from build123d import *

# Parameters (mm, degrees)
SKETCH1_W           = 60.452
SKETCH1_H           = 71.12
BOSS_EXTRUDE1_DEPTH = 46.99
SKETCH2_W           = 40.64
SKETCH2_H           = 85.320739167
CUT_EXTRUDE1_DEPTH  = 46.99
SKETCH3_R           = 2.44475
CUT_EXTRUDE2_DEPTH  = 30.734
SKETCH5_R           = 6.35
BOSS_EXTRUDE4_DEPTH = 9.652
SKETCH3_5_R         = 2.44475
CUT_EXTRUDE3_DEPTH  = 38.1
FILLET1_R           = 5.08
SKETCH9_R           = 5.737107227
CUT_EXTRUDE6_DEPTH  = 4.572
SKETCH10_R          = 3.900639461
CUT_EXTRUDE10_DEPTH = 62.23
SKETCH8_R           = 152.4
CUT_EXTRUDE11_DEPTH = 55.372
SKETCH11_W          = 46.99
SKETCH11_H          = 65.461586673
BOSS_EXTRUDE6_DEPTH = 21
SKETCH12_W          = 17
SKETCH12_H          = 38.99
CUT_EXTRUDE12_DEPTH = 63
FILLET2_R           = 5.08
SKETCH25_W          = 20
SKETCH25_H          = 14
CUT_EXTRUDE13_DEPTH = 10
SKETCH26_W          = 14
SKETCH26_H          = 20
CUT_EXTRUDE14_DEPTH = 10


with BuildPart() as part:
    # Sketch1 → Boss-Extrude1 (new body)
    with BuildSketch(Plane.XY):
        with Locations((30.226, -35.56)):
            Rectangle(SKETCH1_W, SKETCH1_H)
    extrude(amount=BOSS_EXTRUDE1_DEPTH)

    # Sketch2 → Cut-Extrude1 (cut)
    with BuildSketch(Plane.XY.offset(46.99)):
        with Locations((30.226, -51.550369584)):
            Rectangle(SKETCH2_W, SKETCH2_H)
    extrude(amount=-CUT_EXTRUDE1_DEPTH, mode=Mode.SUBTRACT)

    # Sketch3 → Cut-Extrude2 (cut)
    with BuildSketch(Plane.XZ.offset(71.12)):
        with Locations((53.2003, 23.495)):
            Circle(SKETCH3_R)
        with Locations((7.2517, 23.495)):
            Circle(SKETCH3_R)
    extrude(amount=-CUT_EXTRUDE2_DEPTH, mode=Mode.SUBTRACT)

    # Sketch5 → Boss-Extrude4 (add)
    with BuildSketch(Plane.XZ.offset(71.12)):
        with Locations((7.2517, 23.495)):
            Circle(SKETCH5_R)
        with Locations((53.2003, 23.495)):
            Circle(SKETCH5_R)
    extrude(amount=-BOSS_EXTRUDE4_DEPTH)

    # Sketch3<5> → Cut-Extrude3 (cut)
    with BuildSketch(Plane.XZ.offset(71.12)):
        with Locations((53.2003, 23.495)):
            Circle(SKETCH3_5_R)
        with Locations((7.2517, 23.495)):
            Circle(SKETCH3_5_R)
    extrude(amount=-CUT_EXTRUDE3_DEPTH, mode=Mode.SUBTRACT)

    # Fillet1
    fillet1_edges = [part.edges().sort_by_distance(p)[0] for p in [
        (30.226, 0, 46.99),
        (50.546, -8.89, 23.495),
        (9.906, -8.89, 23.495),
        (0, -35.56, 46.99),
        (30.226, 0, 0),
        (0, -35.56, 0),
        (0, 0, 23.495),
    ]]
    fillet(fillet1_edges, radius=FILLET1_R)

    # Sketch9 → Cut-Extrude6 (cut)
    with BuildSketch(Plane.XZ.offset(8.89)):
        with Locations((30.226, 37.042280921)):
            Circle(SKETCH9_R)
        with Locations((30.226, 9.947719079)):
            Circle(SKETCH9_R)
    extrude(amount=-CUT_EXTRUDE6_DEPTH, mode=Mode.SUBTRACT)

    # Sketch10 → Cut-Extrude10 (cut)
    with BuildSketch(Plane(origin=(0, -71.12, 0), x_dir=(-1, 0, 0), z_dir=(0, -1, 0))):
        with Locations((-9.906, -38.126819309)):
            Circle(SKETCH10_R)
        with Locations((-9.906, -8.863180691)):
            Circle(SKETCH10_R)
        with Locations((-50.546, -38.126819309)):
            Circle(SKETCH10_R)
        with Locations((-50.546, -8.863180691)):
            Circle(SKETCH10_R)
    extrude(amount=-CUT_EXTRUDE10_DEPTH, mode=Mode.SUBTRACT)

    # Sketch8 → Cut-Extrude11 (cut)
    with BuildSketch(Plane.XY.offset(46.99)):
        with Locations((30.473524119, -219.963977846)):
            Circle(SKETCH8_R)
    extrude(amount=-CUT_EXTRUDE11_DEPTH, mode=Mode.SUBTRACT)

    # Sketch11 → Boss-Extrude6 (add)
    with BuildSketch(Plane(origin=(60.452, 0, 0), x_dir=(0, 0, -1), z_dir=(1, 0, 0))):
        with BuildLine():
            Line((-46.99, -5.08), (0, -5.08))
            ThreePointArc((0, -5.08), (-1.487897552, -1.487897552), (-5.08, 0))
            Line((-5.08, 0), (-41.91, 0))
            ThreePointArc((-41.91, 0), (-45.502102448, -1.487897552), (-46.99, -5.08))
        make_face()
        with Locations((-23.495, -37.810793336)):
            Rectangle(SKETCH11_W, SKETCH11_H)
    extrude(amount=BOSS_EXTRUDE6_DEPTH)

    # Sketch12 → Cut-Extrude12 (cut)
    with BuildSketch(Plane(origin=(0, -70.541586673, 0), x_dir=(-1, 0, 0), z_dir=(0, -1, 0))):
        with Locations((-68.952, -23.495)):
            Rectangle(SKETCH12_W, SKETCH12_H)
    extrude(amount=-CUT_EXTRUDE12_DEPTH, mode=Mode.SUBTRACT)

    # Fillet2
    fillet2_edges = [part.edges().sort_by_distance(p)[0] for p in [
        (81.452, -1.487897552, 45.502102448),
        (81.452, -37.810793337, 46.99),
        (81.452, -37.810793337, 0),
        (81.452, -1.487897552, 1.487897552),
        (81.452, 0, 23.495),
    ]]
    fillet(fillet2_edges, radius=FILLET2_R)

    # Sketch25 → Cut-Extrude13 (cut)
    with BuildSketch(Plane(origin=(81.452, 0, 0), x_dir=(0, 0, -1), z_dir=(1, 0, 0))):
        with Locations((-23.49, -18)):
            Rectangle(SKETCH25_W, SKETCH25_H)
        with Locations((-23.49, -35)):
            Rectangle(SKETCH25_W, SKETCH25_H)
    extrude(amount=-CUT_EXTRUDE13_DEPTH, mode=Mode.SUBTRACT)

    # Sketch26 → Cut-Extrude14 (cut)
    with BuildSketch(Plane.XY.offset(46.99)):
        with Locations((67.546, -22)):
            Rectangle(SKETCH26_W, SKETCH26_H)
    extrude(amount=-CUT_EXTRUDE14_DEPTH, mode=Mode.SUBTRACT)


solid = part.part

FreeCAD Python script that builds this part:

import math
import FreeCAD as App
import Part
import Sketcher

V = App.Vector
Q = App.Units.Quantity


def edges_at(feature, points):
    """Names of the edges that pass closest to the given points."""
    edges = feature.Shape.Edges
    near = lambda p: min(range(len(edges)), key=lambda i: edges[i].distToShape(Part.Vertex(*p))[0])
    return sorted({f"Edge{near(p) + 1}" for p in points})

doc = App.newDocument("Part")
body = doc.addObject("PartDesign::Body", "Body")

# Sketch on XY plane
sketch1 = body.newObject("Sketcher::SketchObject", "Sketch")
sketch1.AttachmentSupport = (doc.getObject("XY_Plane"), [""])
sketch1.MapMode = "FlatFace"
sketch1.addGeometry([
    Part.LineSegment(V(0, 0, 0), V(0, -71, 0)),
    Part.LineSegment(V(0, -71, 0), V(60, -71, 0)),
    Part.LineSegment(V(60, -71, 0), V(60, 0, 0)),
    Part.LineSegment(V(60, 0, 0), V(0, 0, 0)),
], False)
sketch1.addConstraint([
    Sketcher.Constraint("Coincident", 0, 2, 1, 1),
    Sketcher.Constraint("Coincident", 1, 2, 2, 1),
    Sketcher.Constraint("Coincident", 2, 2, 3, 1),
    Sketcher.Constraint("Coincident", 3, 2, 0, 1),
    Sketcher.Constraint("Vertical", 0),
    Sketcher.Constraint("Horizontal", 1),
    Sketcher.Constraint("Vertical", 2),
    Sketcher.Constraint("Horizontal", 3),
    Sketcher.Constraint("Coincident", 3, 2, -1, 1),
    Sketcher.Constraint("DistanceY", 0, 2, 0, 1, Q("2.8 in")),
    Sketcher.Constraint("DistanceX", 1, 1, 1, 2, Q("2.38 in")),
])
pad1 = body.newObject("PartDesign::Pad", "Pad")
pad1.Profile = sketch1
pad1.Length = Q("1.85 in")

# Sketch on XY plane
sketch2 = body.newObject("Sketcher::SketchObject", "Sketch001")
sketch2.AttachmentSupport = (doc.getObject("XY_Plane"), [""])
sketch2.MapMode = "FlatFace"
sketch2.AttachmentOffset = App.Placement(V(0, 0, 1.85 * 25.4), App.Rotation())
sketch2.addGeometry([
    Part.LineSegment(V(10, -9, 0), V(10, -94, 0)),
    Part.LineSegment(V(10, -94, 0), V(51, -94, 0)),
    Part.LineSegment(V(51, -94, 0), V(51, -9, 0)),
    Part.LineSegment(V(51, -9, 0), V(10, -9, 0)),
], False)
sketch2.addConstraint([
    Sketcher.Constraint("Coincident", 0, 2, 1, 1),
    Sketcher.Constraint("Coincident", 1, 2, 2, 1),
    Sketcher.Constraint("Coincident", 2, 2, 3, 1),
    Sketcher.Constraint("Coincident", 3, 2, 0, 1),
    Sketcher.Constraint("Vertical", 0),
    Sketcher.Constraint("Horizontal", 1),
    Sketcher.Constraint("Vertical", 2),
    Sketcher.Constraint("Horizontal", 3),
    Sketcher.Constraint("DistanceX", 1, 1, 1, 2, Q("1.6 in")),
    Sketcher.Constraint("DistanceX", -1, 1, 0, 2, Q("0.39 in")),
    Sketcher.Constraint("DistanceY", 2, 2, -1, 1, Q("0.35 in")),
    Sketcher.Constraint("DistanceY", 0, 2, 0, 1, Q("85.320739 mm")),
])
pocket1 = body.newObject("PartDesign::Pocket", "Pocket")
pocket1.Profile = sketch2
pocket1.Length = Q("1.85 in")

# Sketch on XZ plane
sketch3 = body.newObject("Sketcher::SketchObject", "Sketch002")
sketch3.AttachmentSupport = (doc.getObject("XZ_Plane"), [""])
sketch3.MapMode = "FlatFace"
sketch3.AttachmentOffset = App.Placement(V(0, 0, 2.8 * 25.4), App.Rotation())
sketch3.addGeometry([
    Part.Circle(V(53.2, 23.5, 0), V(0, 0, 1), 2.4),
    Part.Circle(V(7.3, 23.5, 0), V(0, 0, 1), 2.4),
], False)
sketch3.addConstraint([
    Sketcher.Constraint("Equal", 0, 1),
    Sketcher.Constraint("Horizontal", 0, 3, 1, 3),
    Sketcher.Constraint("Diameter", 0, Q("0.1925 in")),
    Sketcher.Constraint("DistanceY", -1, 1, 0, 3, Q("0.925 in")),
    Sketcher.Constraint("DistanceX", 1, 3, 0, 3, Q("1.809 in")),
    Sketcher.Constraint("DistanceX", -1, 1, 0, 3, Q("2.0945 in")),
])
pocket2 = body.newObject("PartDesign::Pocket", "Pocket001")
pocket2.Profile = sketch3
pocket2.Length = Q("1.21 in")

# Sketch on XZ plane
sketch4 = body.newObject("Sketcher::SketchObject", "Sketch003")
sketch4.AttachmentSupport = (doc.getObject("XZ_Plane"), [""])
sketch4.MapMode = "FlatFace"
sketch4.AttachmentOffset = App.Placement(V(0, 0, 2.8 * 25.4), App.Rotation())
sketch4.addGeometry([
    Part.Circle(V(7, 23, 0), V(0, 0, 1), 6),
    Part.Circle(V(53, 23, 0), V(0, 0, 1), 6),
], False)
sketch4.addConstraint([
    Sketcher.Constraint("Equal", 0, 1),
    Sketcher.Constraint("Horizontal", 0, 3, 1, 3),
    Sketcher.Constraint("Diameter", 0, Q("0.5 in")),
    Sketcher.Constraint("DistanceY", -1, 1, 0, 3, Q("0.925 in")),
    Sketcher.Constraint("DistanceX", 0, 3, 1, 3, Q("1.809 in")),
    Sketcher.Constraint("DistanceX", -1, 1, 0, 3, Q("0.2855 in")),
])
pad2 = body.newObject("PartDesign::Pad", "Pad001")
pad2.Profile = sketch4
pad2.Length = Q("0.38 in")
pad2.Reversed = True

# Sketch on XZ plane
sketch5 = body.newObject("Sketcher::SketchObject", "Sketch004")
sketch5.AttachmentSupport = (doc.getObject("XZ_Plane"), [""])
sketch5.MapMode = "FlatFace"
sketch5.AttachmentOffset = App.Placement(V(0, 0, 2.8 * 25.4), App.Rotation())
sketch5.addGeometry([
    Part.Circle(V(53.2, 23.5, 0), V(0, 0, 1), 2.4),
    Part.Circle(V(7.3, 23.5, 0), V(0, 0, 1), 2.4),
], False)
sketch5.addConstraint([
    Sketcher.Constraint("Equal", 0, 1),
    Sketcher.Constraint("Horizontal", 0, 3, 1, 3),
    Sketcher.Constraint("Diameter", 0, Q("0.1925 in")),
    Sketcher.Constraint("DistanceY", -1, 1, 0, 3, Q("0.925 in")),
    Sketcher.Constraint("DistanceX", 1, 3, 0, 3, Q("1.809 in")),
    Sketcher.Constraint("DistanceX", -1, 1, 0, 3, Q("2.0945 in")),
])
pocket3 = body.newObject("PartDesign::Pocket", "Pocket002")
pocket3.Profile = sketch5
pocket3.Length = Q("1.5 in")
doc.recompute()

fillet = body.newObject("PartDesign::Fillet", "Fillet")
fillet.Base = (pocket3, edges_at(pocket3, [
    (30.226, 0, 46.99),
    (50.546, -8.89, 23.495),
    (9.906, -8.89, 23.495),
    (0, -35.56, 46.99),
    (30.226, 0, 0),
    (0, -35.56, 0),
    (0, 0, 23.495),
]))
fillet.Radius = Q("0.2 in")

# Sketch on XZ plane
sketch6 = body.newObject("Sketcher::SketchObject", "Sketch005")
sketch6.AttachmentSupport = (doc.getObject("XZ_Plane"), [""])
sketch6.MapMode = "FlatFace"
sketch6.AttachmentOffset = App.Placement(V(0, 0, 0.35 * 25.4), App.Rotation())
sketch6.addGeometry([
    Part.Circle(V(30, 37, 0), V(0, 0, 1), 6),
    Part.Circle(V(30, 10, 0), V(0, 0, 1), 6),
], False)
sketch6.addConstraint([
    Sketcher.Constraint("Equal", 0, 1),
    Sketcher.Constraint("Vertical", 0, 3, 1, 3),
    Sketcher.Constraint("DistanceX", -1, 1, 0, 3, Q("1.19 in")),
    Sketcher.Constraint("Diameter", 0, Q("11.474214 mm")),
    Sketcher.Constraint("DistanceY", -1, 1, 0, 3, Q("37.042281 mm")),
    Sketcher.Constraint("DistanceY", -1, 1, 1, 3, Q("9.947719 mm")),
])
pocket4 = body.newObject("PartDesign::Pocket", "Pocket003")
pocket4.Profile = sketch6
pocket4.Length = Q("0.18 in")

# Sketch on XZ plane
sketch7 = body.newObject("Sketcher::SketchObject", "Sketch006")
sketch7.AttachmentSupport = (doc.getObject("XZ_Plane"), [""])
sketch7.MapMode = "FlatFace"
sketch7.AttachmentOffset = App.Placement(V(0, 0, 2.8 * 25.4), App.Rotation())
sketch7.addGeometry([
    Part.Circle(V(9.9, 38.1, 0), V(0, 0, 1), 3.9),
    Part.Circle(V(9.9, 8.9, 0), V(0, 0, 1), 3.9),
    Part.Circle(V(50.5, 38.1, 0), V(0, 0, 1), 3.9),
    Part.Circle(V(50.5, 8.9, 0), V(0, 0, 1), 3.9),
], False)
sketch7.addConstraint([
    Sketcher.Constraint("Equal", 0, 1),
    Sketcher.Constraint("Equal", 1, 2),
    Sketcher.Constraint("Equal", 2, 3),
    Sketcher.Constraint("Horizontal", 0, 3, 2, 3),
    Sketcher.Constraint("Horizontal", 1, 3, 3, 3),
    Sketcher.Constraint("Vertical", 0, 3, 1, 3),
    Sketcher.Constraint("Vertical", 2, 3, 3, 3),
    Sketcher.Constraint("DistanceX", 0, 3, 2, 3, Q("1.6 in")),
    Sketcher.Constraint("DistanceX", -1, 1, 0, 3, Q("0.39 in")),
    Sketcher.Constraint("Diameter", 0, Q("7.801279 mm")),
    Sketcher.Constraint("DistanceY", -1, 1, 0, 3, Q("38.126819 mm")),
    Sketcher.Constraint("DistanceY", -1, 1, 1, 3, Q("8.863181 mm")),
])
pocket5 = body.newObject("PartDesign::Pocket", "Pocket004")
pocket5.Profile = sketch7
pocket5.Length = Q("2.45 in")

# Sketch on XY plane
sketch8 = body.newObject("Sketcher::SketchObject", "Sketch007")
sketch8.AttachmentSupport = (doc.getObject("XY_Plane"), [""])
sketch8.MapMode = "FlatFace"
sketch8.AttachmentOffset = App.Placement(V(0, 0, 1.85 * 25.4), App.Rotation())
sketch8.addGeometry(Part.Circle(V(30, -220, 0), V(0, 0, 1), 152), False)
sketch8.addConstraint([
    Sketcher.Constraint("Diameter", 0, Q("12 in")),
    Sketcher.Constraint("DistanceX", -1, 1, 0, 3, Q("30.473524 mm")),
    Sketcher.Constraint("DistanceY", 0, 3, -1, 1, Q("219.963978 mm")),
])
pocket6 = body.newObject("PartDesign::Pocket", "Pocket005")
pocket6.Profile = sketch8
pocket6.Length = Q("2.18 in")

# Sketch on YZ plane
sketch9 = body.newObject("Sketcher::SketchObject", "Sketch008")
sketch9.AttachmentSupport = (doc.getObject("YZ_Plane"), [""])
sketch9.MapMode = "FlatFace"
sketch9.AttachmentOffset = App.Placement(V(0, 0, 2.38 * 25.4), App.Rotation())
sketch9.addGeometry([
    Part.ArcOfCircle(Part.Circle(V(-5, 5, 0), V(0, 0, 1), 5), math.radians(-90), math.radians(0)),  # 0
    Part.LineSegment(V(0, 5, 0), V(0, 42, 0)),  # 1
    Part.ArcOfCircle(Part.Circle(V(-5, 42, 0), V(0, 0, 1), 5), math.radians(0), math.radians(90)),  # 2
    Part.LineSegment(V(-5, 47, 0), V(-71, 47, 0)),  # 3
    Part.LineSegment(V(-71, 47, 0), V(-71, 0, 0)),  # 4
    Part.LineSegment(V(-71, 0, 0), V(-5, 0, 0)),  # 5
], False)
sketch9.addConstraint([
    Sketcher.Constraint("Tangent", 0, 2, 1, 1),
    Sketcher.Constraint("Tangent", 1, 2, 2, 1),
    Sketcher.Constraint("Tangent", 2, 2, 3, 1),
    Sketcher.Constraint("Coincident", 3, 2, 4, 1),
    Sketcher.Constraint("Coincident", 4, 2, 5, 1),
    Sketcher.Constraint("Tangent", 5, 2, 0, 1),
    Sketcher.Constraint("Vertical", 1),
    Sketcher.Constraint("Horizontal", 3),
    Sketcher.Constraint("Vertical", 4),
    Sketcher.Constraint("Horizontal", 5),
    Sketcher.Constraint("Equal", 0, 2),
    Sketcher.Constraint("PointOnObject", 0, 2, -2),
    Sketcher.Constraint("PointOnObject", 4, 2, -1),
    Sketcher.Constraint("Radius", 0, Q("0.2 in")),
    Sketcher.Constraint("DistanceY", 1, 1, 1, 2, Q("1.45 in")),
    Sketcher.Constraint("DistanceX", 3, 2, 3, 1, Q("65.461587 mm")),
])
pad3 = body.newObject("PartDesign::Pad", "Pad002")
pad3.Profile = sketch9
pad3.Length = 21

# Sketch on XZ plane
sketch10 = body.newObject("Sketcher::SketchObject", "Sketch009")
sketch10.AttachmentSupport = (doc.getObject("XZ_Plane"), [""])
sketch10.MapMode = "FlatFace"
sketch10.AttachmentOffset = App.Placement(V(0, 0, 70.541587), App.Rotation())
sketch10.addGeometry([
    Part.LineSegment(V(77, 4, 0), V(77, 43, 0)),
    Part.LineSegment(V(77, 43, 0), V(60, 43, 0)),
    Part.LineSegment(V(60, 43, 0), V(60, 4, 0)),
    Part.LineSegment(V(60, 4, 0), V(77, 4, 0)),
], False)
sketch10.addConstraint([
    Sketcher.Constraint("Coincident", 0, 2, 1, 1),
    Sketcher.Constraint("Coincident", 1, 2, 2, 1),
    Sketcher.Constraint("Coincident", 2, 2, 3, 1),
    Sketcher.Constraint("Coincident", 3, 2, 0, 1),
    Sketcher.Constraint("Vertical", 0),
    Sketcher.Constraint("Horizontal", 1),
    Sketcher.Constraint("Vertical", 2),
    Sketcher.Constraint("Horizontal", 3),
    Sketcher.Constraint("DistanceX", -1, 1, 1, 2, Q("2.38 in")),
    Sketcher.Constraint("DistanceX", 1, 2, 1, 1, Q("17 mm")),
    Sketcher.Constraint("DistanceY", 0, 1, 0, 2, Q("38.99 mm")),
    Sketcher.Constraint("DistanceY", -1, 1, 0, 2, Q("42.99 mm")),
])
pocket7 = body.newObject("PartDesign::Pocket", "Pocket006")
pocket7.Profile = sketch10
pocket7.Length = 63
doc.recompute()

fillet2 = body.newObject("PartDesign::Fillet", "Fillet001")
fillet2.Base = (pocket7, edges_at(pocket7, [
    (81.452, -1.488, 45.502),
    (81.452, -37.811, 46.99),
    (81.452, -37.811, 0),
    (81.452, -1.488, 1.488),
    (81.452, 0, 23.495),
]))
fillet2.Radius = Q("0.2 in")

# Sketch on YZ plane
sketch11 = body.newObject("Sketcher::SketchObject", "Sketch010")
sketch11.AttachmentSupport = (doc.getObject("YZ_Plane"), [""])
sketch11.MapMode = "FlatFace"
sketch11.AttachmentOffset = App.Placement(V(0, 0, 81.452), App.Rotation())
sketch11.addGeometry([
    Part.LineSegment(V(-11, 33, 0), V(-25, 33, 0)),  # 0
    Part.LineSegment(V(-25, 33, 0), V(-25, 13, 0)),  # 1
    Part.LineSegment(V(-25, 13, 0), V(-11, 13, 0)),  # 2
    Part.LineSegment(V(-11, 13, 0), V(-11, 33, 0)),  # 3
    Part.LineSegment(V(-28, 33, 0), V(-42, 33, 0)),  # 4
    Part.LineSegment(V(-42, 33, 0), V(-42, 13, 0)),  # 5
    Part.LineSegment(V(-42, 13, 0), V(-28, 13, 0)),  # 6
    Part.LineSegment(V(-28, 13, 0), V(-28, 33, 0)),  # 7
], False)
sketch11.addConstraint([
    Sketcher.Constraint("Coincident", 0, 2, 1, 1),
    Sketcher.Constraint("Coincident", 1, 2, 2, 1),
    Sketcher.Constraint("Coincident", 2, 2, 3, 1),
    Sketcher.Constraint("Coincident", 3, 2, 0, 1),
    Sketcher.Constraint("Coincident", 4, 2, 5, 1),
    Sketcher.Constraint("Coincident", 5, 2, 6, 1),
    Sketcher.Constraint("Coincident", 6, 2, 7, 1),
    Sketcher.Constraint("Coincident", 7, 2, 4, 1),
    Sketcher.Constraint("Horizontal", 0),
    Sketcher.Constraint("Vertical", 1),
    Sketcher.Constraint("Horizontal", 2),
    Sketcher.Constraint("Vertical", 3),
    Sketcher.Constraint("Horizontal", 4),
    Sketcher.Constraint("Vertical", 5),
    Sketcher.Constraint("Horizontal", 6),
    Sketcher.Constraint("Vertical", 7),
    Sketcher.Constraint("Horizontal", 3, 2, 4, 2),
    Sketcher.Constraint("Horizontal", 2, 2, 5, 2),
    Sketcher.Constraint("Equal", 2, 4),
    Sketcher.Constraint("DistanceX", 0, 2, 0, 1, Q("14 mm")),
    Sketcher.Constraint("DistanceY", 1, 2, 1, 1, Q("20 mm")),
    Sketcher.Constraint("DistanceX", 0, 2, -1, 1, Q("25 mm")),
    Sketcher.Constraint("DistanceY", -1, 1, 0, 2, Q("33.49 mm")),
    Sketcher.Constraint("DistanceX", 4, 2, -1, 1, Q("42 mm")),
])
pocket8 = body.newObject("PartDesign::Pocket", "Pocket007")
pocket8.Profile = sketch11
pocket8.Length = 10

# Sketch on XY plane
sketch12 = body.newObject("Sketcher::SketchObject", "Sketch011")
sketch12.AttachmentSupport = (doc.getObject("XY_Plane"), [""])
sketch12.MapMode = "FlatFace"
sketch12.AttachmentOffset = App.Placement(V(0, 0, 1.85 * 25.4), App.Rotation())
sketch12.addGeometry([
    Part.LineSegment(V(61, -12, 0), V(61, -32, 0)),
    Part.LineSegment(V(61, -32, 0), V(75, -32, 0)),
    Part.LineSegment(V(75, -32, 0), V(75, -12, 0)),
    Part.LineSegment(V(75, -12, 0), V(61, -12, 0)),
], False)
sketch12.addConstraint([
    Sketcher.Constraint("Coincident", 0, 2, 1, 1),
    Sketcher.Constraint("Coincident", 1, 2, 2, 1),
    Sketcher.Constraint("Coincident", 2, 2, 3, 1),
    Sketcher.Constraint("Coincident", 3, 2, 0, 1),
    Sketcher.Constraint("Vertical", 0),
    Sketcher.Constraint("Horizontal", 1),
    Sketcher.Constraint("Vertical", 2),
    Sketcher.Constraint("Horizontal", 3),
    Sketcher.Constraint("DistanceX", 1, 1, 1, 2, Q("14 mm")),
    Sketcher.Constraint("DistanceY", 0, 2, 0, 1, Q("20 mm")),
    Sketcher.Constraint("DistanceX", -1, 1, 0, 2, Q("60.546 mm")),
    Sketcher.Constraint("DistanceY", 0, 2, -1, 1, Q("32 mm")),
])
pocket9 = body.newObject("PartDesign::Pocket", "Pocket008")
pocket9.Profile = sketch12
pocket9.Length = 10

doc.recompute()
